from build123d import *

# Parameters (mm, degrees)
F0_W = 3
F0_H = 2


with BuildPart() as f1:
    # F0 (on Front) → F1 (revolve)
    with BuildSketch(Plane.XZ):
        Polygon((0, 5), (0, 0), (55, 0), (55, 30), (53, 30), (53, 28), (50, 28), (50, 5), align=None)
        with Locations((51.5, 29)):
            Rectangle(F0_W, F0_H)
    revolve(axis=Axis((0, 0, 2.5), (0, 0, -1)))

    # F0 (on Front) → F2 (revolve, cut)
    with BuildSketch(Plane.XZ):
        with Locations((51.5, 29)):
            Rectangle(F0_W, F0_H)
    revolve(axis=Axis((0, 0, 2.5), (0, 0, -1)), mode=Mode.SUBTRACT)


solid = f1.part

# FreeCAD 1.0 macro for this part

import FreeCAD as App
import Part
import Sketcher

doc = App.newDocument("Part")
body = doc.addObject("PartDesign::Body", "Body")

# Sketch on XZ plane
sketch1 = body.newObject("Sketcher::SketchObject", "Sketch")
sketch1.AttachmentSupport = (doc.getObject("XZ_Plane"), [""])
sketch1.MapMode = "FlatFace"
sketch1.addGeometry([
    Part.LineSegment(App.Vector(0, 5, 0), App.Vector(0, 0, 0)),  # 0
    Part.LineSegment(App.Vector(0, 0, 0), App.Vector(55, 0, 0)),  # 1
    Part.LineSegment(App.Vector(55, 0, 0), App.Vector(55, 30, 0)),  # 2
    Part.LineSegment(App.Vector(55, 30, 0), App.Vector(50, 30, 0)),  # 3
    Part.LineSegment(App.Vector(50, 30, 0), App.Vector(50, 5, 0)),  # 4
    Part.LineSegment(App.Vector(50, 5, 0), App.Vector(0, 5, 0)),  # 5
], False)
sketch1.addConstraint([
    Sketcher.Constraint("Coincident", 0, 2, 1, 1),
    Sketcher.Constraint("Coincident", 1, 2, 2, 1),
    Sketcher.Constraint("Coincident", 2, 2, 3, 1),
    Sketcher.Constraint("Coincident", 3, 2, 4, 1),
    Sketcher.Constraint("Coincident", 4, 2, 5, 1),
    Sketcher.Constraint("Coincident", 5, 2, 0, 1),
    Sketcher.Constraint("Vertical", 0),
    Sketcher.Constraint("Horizontal", 1),
    Sketcher.Constraint("Vertical", 2),
    Sketcher.Constraint("Horizontal", 3),
    Sketcher.Constraint("Vertical", 4),
    Sketcher.Constraint("Horizontal", 5),
    Sketcher.Constraint("Coincident", 0, 2, -1, 1),
    Sketcher.Constraint("Equal", 3, 0),
    Sketcher.Constraint("DistanceX", 1, 1, 1, 2, 55.0),
    Sketcher.Constraint("DistanceX", 3, 2, 3, 1, 5.0),
    Sketcher.Constraint("DistanceY", 2, 1, 2, 2, 30.0),
])
revolution = body.newObject("PartDesign::Revolution", "Revolution")
revolution.Profile = sketch1
revolution.ReferenceAxis = (sketch1, ["V_Axis"])
revolution.Angle = 360

# Sketch on XZ plane
sketch2 = body.newObject("Sketcher::SketchObject", "Sketch001")
sketch2.AttachmentSupport = (doc.getObject("XZ_Plane"), [""])
sketch2.MapMode = "FlatFace"
sketch2.addGeometry([
    Part.LineSegment(App.Vector(50, 30, 0), App.Vector(50, 28, 0)),
    Part.LineSegment(App.Vector(50, 28, 0), App.Vector(53, 28, 0)),
    Part.LineSegment(App.Vector(53, 28, 0), App.Vector(53, 30, 0)),
    Part.LineSegment(App.Vector(53, 30, 0), App.Vector(50, 30, 0)),
], False)
sketch2.addConstraint([
    Sketcher.Constraint("Coincident", 0, 2, 1, 1),
    Sketcher.Constraint("Coincident", 1, 2, 2, 1),
    Sketcher.Constraint("Coincident", 2, 2, 3, 1),
    Sketcher.Constraint("Coincident", 3, 2, 0, 1),
    Sketcher.Constraint("Vertical", 0),
    Sketcher.Constraint("Horizontal", 1),
    Sketcher.Constraint("Vertical", 2),
    Sketcher.Constraint("Horizontal", 3),
    Sketcher.Constraint("DistanceX", 1, 1, 1, 2, 3.0),
    Sketcher.Constraint("DistanceY", 0, 2, 0, 1, 2.0),
    Sketcher.Constraint("DistanceX", -1, 1, 0, 2, 50.0),
    Sketcher.Constraint("DistanceY", -1, 1, 0, 2, 28.0),
])
groove = body.newObject("PartDesign::Groove", "Groove")
groove.Profile = sketch2
groove.ReferenceAxis = (sketch2, ["V_Axis"])
groove.Angle = 360

doc.recompute()
